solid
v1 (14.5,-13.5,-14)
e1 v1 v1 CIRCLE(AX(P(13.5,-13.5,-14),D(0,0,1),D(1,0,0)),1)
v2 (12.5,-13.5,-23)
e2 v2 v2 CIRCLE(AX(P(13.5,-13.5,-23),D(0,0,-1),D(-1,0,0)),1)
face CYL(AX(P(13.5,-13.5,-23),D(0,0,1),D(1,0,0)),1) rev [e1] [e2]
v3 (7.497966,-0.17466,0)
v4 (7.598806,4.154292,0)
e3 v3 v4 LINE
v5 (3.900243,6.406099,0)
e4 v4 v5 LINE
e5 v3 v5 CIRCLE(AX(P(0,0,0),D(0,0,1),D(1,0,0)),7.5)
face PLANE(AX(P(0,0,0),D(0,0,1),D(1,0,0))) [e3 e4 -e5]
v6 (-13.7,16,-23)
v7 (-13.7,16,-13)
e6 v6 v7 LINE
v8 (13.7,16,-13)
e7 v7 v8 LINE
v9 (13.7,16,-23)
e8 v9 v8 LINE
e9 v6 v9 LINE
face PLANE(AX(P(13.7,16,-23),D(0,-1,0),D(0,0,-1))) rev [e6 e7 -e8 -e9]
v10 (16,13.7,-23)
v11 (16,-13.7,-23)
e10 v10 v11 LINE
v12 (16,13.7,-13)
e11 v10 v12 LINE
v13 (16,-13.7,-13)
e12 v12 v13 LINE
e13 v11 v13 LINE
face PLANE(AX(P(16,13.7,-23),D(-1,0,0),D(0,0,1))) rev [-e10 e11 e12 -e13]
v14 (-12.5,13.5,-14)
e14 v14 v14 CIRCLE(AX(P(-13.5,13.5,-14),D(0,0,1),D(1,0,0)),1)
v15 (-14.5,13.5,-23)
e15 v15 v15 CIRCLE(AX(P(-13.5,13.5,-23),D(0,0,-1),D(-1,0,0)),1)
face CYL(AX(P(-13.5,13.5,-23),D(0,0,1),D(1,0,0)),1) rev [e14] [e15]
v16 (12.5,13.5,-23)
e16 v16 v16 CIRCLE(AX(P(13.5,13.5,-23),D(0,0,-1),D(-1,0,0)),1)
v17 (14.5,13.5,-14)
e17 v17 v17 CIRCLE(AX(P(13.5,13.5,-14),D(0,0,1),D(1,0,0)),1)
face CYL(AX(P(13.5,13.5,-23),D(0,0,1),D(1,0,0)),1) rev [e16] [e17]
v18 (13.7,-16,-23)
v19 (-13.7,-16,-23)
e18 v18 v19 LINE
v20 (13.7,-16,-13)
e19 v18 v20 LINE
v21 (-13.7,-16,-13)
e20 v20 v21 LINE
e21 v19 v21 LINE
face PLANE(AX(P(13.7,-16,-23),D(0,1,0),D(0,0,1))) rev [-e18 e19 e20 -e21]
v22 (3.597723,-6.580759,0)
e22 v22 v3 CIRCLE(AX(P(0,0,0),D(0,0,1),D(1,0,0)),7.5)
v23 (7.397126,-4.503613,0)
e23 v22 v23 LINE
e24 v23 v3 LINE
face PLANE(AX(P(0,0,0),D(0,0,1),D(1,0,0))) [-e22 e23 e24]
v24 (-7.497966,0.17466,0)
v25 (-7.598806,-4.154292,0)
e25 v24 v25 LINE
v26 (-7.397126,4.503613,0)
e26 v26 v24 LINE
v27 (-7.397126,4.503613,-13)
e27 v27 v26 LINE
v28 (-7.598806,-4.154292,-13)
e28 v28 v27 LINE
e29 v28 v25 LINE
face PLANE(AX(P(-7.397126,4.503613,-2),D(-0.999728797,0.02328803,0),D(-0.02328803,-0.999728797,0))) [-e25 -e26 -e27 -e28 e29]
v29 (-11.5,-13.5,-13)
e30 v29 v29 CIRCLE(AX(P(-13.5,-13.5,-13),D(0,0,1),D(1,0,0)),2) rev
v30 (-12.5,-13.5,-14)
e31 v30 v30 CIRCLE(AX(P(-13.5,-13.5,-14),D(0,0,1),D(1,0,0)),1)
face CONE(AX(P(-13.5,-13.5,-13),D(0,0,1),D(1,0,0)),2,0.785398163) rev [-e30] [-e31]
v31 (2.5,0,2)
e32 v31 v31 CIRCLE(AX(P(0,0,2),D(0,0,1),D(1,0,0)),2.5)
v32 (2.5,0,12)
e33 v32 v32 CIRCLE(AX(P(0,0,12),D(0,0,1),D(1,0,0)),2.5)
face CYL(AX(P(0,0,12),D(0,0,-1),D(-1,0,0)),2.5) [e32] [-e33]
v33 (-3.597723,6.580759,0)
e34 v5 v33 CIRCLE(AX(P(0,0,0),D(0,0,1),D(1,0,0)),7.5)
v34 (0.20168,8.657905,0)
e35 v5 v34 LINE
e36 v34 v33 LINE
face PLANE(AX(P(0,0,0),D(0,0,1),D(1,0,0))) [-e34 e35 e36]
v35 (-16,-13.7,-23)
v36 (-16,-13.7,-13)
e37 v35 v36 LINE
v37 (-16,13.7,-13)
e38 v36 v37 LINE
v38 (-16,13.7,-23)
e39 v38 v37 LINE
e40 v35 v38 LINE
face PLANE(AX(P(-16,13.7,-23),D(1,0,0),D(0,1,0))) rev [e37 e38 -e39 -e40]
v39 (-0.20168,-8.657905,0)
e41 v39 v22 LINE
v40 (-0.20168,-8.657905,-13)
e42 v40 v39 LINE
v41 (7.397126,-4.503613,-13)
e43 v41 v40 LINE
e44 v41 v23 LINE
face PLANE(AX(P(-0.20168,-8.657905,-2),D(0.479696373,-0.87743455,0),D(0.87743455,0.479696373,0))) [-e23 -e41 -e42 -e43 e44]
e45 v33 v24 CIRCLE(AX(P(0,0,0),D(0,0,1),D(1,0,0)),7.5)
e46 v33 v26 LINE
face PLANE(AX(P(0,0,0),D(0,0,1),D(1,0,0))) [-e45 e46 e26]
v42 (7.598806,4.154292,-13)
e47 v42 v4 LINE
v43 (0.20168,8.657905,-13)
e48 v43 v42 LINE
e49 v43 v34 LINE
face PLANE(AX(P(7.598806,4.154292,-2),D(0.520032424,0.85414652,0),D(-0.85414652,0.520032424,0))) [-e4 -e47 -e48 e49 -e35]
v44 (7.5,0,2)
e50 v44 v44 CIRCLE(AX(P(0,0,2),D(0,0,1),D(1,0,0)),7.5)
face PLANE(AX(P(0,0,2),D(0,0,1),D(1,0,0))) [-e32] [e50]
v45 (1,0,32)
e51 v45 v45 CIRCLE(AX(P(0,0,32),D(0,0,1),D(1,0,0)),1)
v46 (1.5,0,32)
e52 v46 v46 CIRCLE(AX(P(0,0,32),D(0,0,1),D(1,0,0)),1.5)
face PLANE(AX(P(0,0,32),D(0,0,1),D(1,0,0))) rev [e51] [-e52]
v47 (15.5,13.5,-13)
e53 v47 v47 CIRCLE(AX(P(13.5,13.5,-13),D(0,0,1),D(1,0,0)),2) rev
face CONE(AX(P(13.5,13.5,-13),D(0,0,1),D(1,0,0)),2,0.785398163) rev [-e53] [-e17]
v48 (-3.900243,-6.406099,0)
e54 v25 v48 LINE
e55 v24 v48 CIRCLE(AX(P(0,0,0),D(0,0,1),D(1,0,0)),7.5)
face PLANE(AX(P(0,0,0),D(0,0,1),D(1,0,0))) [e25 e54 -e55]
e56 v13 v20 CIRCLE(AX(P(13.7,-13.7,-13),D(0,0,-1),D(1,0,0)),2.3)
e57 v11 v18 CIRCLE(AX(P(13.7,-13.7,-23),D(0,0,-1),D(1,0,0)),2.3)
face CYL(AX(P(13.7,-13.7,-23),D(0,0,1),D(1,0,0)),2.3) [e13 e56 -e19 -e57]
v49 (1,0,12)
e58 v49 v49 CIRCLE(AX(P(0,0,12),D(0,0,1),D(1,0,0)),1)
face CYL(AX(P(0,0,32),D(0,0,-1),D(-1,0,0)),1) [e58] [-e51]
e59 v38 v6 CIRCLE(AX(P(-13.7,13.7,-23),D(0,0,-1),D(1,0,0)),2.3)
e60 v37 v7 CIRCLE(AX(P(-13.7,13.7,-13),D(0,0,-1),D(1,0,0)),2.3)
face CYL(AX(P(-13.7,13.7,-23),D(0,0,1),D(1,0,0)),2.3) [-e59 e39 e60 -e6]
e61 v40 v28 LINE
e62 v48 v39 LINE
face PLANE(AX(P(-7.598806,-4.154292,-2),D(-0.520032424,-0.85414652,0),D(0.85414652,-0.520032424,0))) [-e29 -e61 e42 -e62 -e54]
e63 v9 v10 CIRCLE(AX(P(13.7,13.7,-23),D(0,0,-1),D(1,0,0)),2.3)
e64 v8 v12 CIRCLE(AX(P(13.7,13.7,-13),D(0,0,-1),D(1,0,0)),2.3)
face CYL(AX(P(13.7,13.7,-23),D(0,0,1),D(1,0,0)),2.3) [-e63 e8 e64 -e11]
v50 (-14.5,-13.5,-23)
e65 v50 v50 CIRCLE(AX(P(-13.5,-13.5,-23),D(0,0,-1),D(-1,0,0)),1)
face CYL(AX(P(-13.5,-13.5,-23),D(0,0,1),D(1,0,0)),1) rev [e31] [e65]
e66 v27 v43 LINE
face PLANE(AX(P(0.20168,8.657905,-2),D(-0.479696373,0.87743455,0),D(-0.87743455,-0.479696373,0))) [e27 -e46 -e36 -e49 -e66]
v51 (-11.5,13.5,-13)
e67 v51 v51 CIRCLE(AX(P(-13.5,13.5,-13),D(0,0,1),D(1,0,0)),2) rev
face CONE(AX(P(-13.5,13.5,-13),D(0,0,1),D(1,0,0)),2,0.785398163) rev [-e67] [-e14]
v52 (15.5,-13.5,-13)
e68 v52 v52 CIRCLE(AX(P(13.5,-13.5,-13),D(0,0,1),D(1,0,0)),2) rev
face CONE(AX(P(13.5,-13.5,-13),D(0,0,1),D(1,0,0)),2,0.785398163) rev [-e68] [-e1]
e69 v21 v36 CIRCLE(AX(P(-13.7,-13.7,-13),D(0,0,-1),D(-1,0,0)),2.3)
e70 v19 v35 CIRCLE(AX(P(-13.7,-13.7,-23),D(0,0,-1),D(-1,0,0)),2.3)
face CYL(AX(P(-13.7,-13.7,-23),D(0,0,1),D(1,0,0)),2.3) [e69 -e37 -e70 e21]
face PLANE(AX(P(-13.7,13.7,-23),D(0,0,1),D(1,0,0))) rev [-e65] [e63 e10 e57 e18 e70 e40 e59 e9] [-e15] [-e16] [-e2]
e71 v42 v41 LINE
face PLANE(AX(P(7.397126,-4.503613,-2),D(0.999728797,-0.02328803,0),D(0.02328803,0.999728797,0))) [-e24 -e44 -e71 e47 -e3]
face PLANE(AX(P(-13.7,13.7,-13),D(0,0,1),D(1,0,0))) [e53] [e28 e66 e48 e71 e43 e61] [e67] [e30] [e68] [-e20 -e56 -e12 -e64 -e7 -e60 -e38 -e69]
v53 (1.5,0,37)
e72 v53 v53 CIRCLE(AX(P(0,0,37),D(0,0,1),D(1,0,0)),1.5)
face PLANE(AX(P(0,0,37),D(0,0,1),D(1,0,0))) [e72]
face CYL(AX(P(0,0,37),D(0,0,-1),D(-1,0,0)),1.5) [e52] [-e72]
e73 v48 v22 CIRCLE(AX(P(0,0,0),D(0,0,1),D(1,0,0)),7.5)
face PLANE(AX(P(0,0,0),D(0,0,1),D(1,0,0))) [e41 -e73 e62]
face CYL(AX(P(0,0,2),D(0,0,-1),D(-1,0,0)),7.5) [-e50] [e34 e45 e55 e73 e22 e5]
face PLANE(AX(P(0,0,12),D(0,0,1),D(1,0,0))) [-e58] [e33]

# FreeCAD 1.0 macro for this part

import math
import FreeCAD as App
import Part
import Sketcher


def edges_at(feature, points):
    """Names of the edges that pass closest to the given points."""
    edges = feature.Shape.Edges
    near = lambda p: min(range(len(edges)), key=lambda i: edges[i].distToShape(Part.Vertex(*p))[0])
    return sorted({f"Edge{near(p) + 1}" for p in points})


def add_polygon(sketch, points):
    """Adds a closed chain of lines whose ends are joined by coincident constraints."""
    first, n = sketch.GeometryCount, len(points)
    for a, b in zip(points, points[1:] + points[:1]):
        sketch.addGeometry(Part.LineSegment(App.Vector(*a, 0), App.Vector(*b, 0)), False)
    for i in range(n):
        sketch.addConstraint(Sketcher.Constraint("Coincident", first + i, 2, first + (i + 1) % n, 1))

doc = App.newDocument("Part")
params = doc.addObject("Spreadsheet::Sheet", "Params")
for row, (alias, value) in enumerate([
    ("pad1_length", "2 mm"),
    ("sketch2_diameter", "15 mm"),
    ("pad2_length", "2 mm"),
    ("sketch3_diameter", "5 mm"),
    ("pad3_length", "10 mm"),
    ("sketch4_diameter", "2 mm"),
    ("pad4_length", "20 mm"),
    ("sketch5_diameter", "3 mm"),
    ("pad5_length", "5 mm"),
    ("pad6_length", "11 mm"),
    ("sketch7_diameter", "2 mm"),
    ("sketch7_radius", "2.3 mm"),
    ("sketch7_width", "27.4 mm"),
    ("pad7_length", "10 mm"),
    ("chamfer_size", "1 mm"),
], start=1):
    params.set(f"A{row}", alias)
    params.set(f"B{row}", "=" + value)
    params.setAlias(f"B{row}", alias)

body = doc.addObject("PartDesign::Body", "Body")

sketch1 = body.newObject("Sketcher::SketchObject", "Sketch")
sketch1.AttachmentSupport = (doc.getObject("XY_Plane"), [""])
sketch1.MapMode = "FlatFace"
add_polygon(sketch1, [(7, -5), (8, 4), (0, 9), (-7, 5), (-8, -4), (0, -9)])
sketch1.addConstraint([
    Sketcher.Constraint("Symmetric", 0, 2, 3, 2, -1, 1),
    Sketcher.Constraint("Symmetric", 1, 2, 4, 2, -1, 1),
    Sketcher.Constraint("Symmetric", 2, 2, 5, 2, -1, 1),
    Sketcher.Constraint("Equal", 0, 1),
    Sketcher.Constraint("Equal", 1, 2),
    Sketcher.Constraint("DistanceX", -1, 1, 1, 2, 0.20168),
    Sketcher.Constraint("DistanceX", 2, 2, 0, 2, 14.995932),
    Sketcher.Constraint("DistanceY", 0, 2, 2, 2, 0.34932),
    Sketcher.Constraint("DistanceX", 3, 2, 2, 2, 0.20168),
])
pad1 = body.newObject("PartDesign::Pad", "Pad")
pad1.Profile = sketch1
pad1.setExpression("Length", "Params.pad1_length")
pad1.Reversed = True

sketch2 = body.newObject("Sketcher::SketchObject", "Sketch001")
sketch2.AttachmentSupport = (doc.getObject("XY_Plane"), [""])
sketch2.MapMode = "FlatFace"
sketch2.addGeometry(Part.Circle(App.Vector(0, 0, 0), App.Vector(0, 0, 1), 8), False)
sketch2.addConstraint([
    Sketcher.Constraint("Coincident", 0, 3, -1, 1),
    Sketcher.Constraint("Diameter", 0, 15.0),
])
sketch2.setExpression("Constraints[1]", "Params.sketch2_diameter")
pad2 = body.newObject("PartDesign::Pad", "Pad001")
pad2.Profile = sketch2
pad2.setExpression("Length", "Params.pad2_length")

sketch3 = body.newObject("Sketcher::SketchObject", "Sketch002")
sketch3.AttachmentSupport = (doc.getObject("XY_Plane"), [""])
sketch3.MapMode = "FlatFace"
sketch3.AttachmentOffset = App.Placement(App.Vector(0, 0, 2), App.Rotation())
sketch3.addGeometry(Part.Circle(App.Vector(0, 0, 0), App.Vector(0, 0, 1), 2.5), False)
sketch3.addConstraint([
    Sketcher.Constraint("Coincident", 0, 3, -1, 1),
    Sketcher.Constraint("Diameter", 0, 5.0),
])
sketch3.setExpression("Constraints[1]", "Params.sketch3_diameter")
pad3 = body.newObject("PartDesign::Pad", "Pad002")
pad3.Profile = sketch3
pad3.setExpression("Length", "Params.pad3_length")

sketch4 = body.newObject("Sketcher::SketchObject", "Sketch003")
sketch4.AttachmentSupport = (doc.getObject("XY_Plane"), [""])
sketch4.MapMode = "FlatFace"
sketch4.AttachmentOffset = App.Placement(App.Vector(0, 0, 12), App.Rotation())
sketch4.addGeometry(Part.Circle(App.Vector(0, 0, 0), App.Vector(0, 0, 1), 1), False)
sketch4.addConstraint([
    Sketcher.Constraint("Coincident", 0, 3, -1, 1),
    Sketcher.Constraint("Diameter", 0, 2.0),
])
sketch4.setExpression("Constraints[1]", "Params.sketch4_diameter")
pad4 = body.newObject("PartDesign::Pad", "Pad003")
pad4.Profile = sketch4
pad4.setExpression("Length", "Params.pad4_length")

sketch5 = body.newObject("Sketcher::SketchObject", "Sketch004")
sketch5.AttachmentSupport = (doc.getObject("XY_Plane"), [""])
sketch5.MapMode = "FlatFace"
sketch5.AttachmentOffset = App.Placement(App.Vector(0, 0, 32), App.Rotation())
sketch5.addGeometry(Part.Circle(App.Vector(0, 0, 0), App.Vector(0, 0, 1), 1.5), False)
sketch5.addConstraint([
    Sketcher.Constraint("Coincident", 0, 3, -1, 1),
    Sketcher.Constraint("Diameter", 0, 3.0),
])
sketch5.setExpression("Constraints[1]", "Params.sketch5_diameter")
pad5 = body.newObject("PartDesign::Pad", "Pad004")
pad5.Profile = sketch5
pad5.setExpression("Length", "Params.pad5_length")

sketch6 = body.newObject("Sketcher::SketchObject", "Sketch005")
sketch6.AttachmentSupport = (doc.getObject("XY_Plane"), [""])
sketch6.MapMode = "FlatFace"
sketch6.AttachmentOffset = App.Placement(App.Vector(0, 0, -2), App.Rotation())
add_polygon(sketch6, [(0, 9), (8, 4), (7, -5), (0, -9), (-8, -4), (-7, 5)])
sketch6.addConstraint([
    Sketcher.Constraint("Symmetric", 0, 2, 3, 2, -1, 1),
    Sketcher.Constraint("Symmetric", 1, 2, 4, 2, -1, 1),
    Sketcher.Constraint("Symmetric", 2, 2, 5, 2, -1, 1),
    Sketcher.Constraint("Equal", 0, 1),
    Sketcher.Constraint("Equal", 1, 2),
    Sketcher.Constraint("DistanceX", 2, 2, -1, 1, 0.20168),
    Sketcher.Constraint("DistanceX", 1, 2, 0, 2, 0.20168),
    Sketcher.Constraint("DistanceX", 3, 2, 1, 2, 14.995932),
    Sketcher.Constraint("DistanceY", 1, 2, 3, 2, 0.34932),
])
pad6 = body.newObject("PartDesign::Pad", "Pad005")
pad6.Profile = sketch6
pad6.setExpression("Length", "Params.pad6_length")
pad6.Reversed = True

sketch7 = body.newObject("Sketcher::SketchObject", "Sketch006")
sketch7.AttachmentSupport = (doc.getObject("XY_Plane"), [""])
sketch7.MapMode = "FlatFace"
sketch7.AttachmentOffset = App.Placement(App.Vector(0, 0, -13), App.Rotation())
sketch7.addGeometry([
    Part.LineSegment(App.Vector(-13.7, 16, 0), App.Vector(13.7, 16, 0)),
    Part.ArcOfCircle(Part.Circle(App.Vector(13.7, 13.7, 0), App.Vector(0, 0, 1), 2.3), math.radians(0), math.radians(90)),
    Part.LineSegment(App.Vector(16, 13.7, 0), App.Vector(16, -13.7, 0)),
    Part.ArcOfCircle(Part.Circle(App.Vector(13.7, -13.7, 0), App.Vector(0, 0, 1), 2.3), math.radians(-90), math.radians(0)),
    Part.LineSegment(App.Vector(13.7, -16, 0), App.Vector(-13.7, -16, 0)),
    Part.ArcOfCircle(Part.Circle(App.Vector(-13.7, -13.7, 0), App.Vector(0, 0, 1), 2.3), math.radians(180), math.radians(270)),
    Part.LineSegment(App.Vector(-16, -13.7, 0), App.Vector(-16, 13.7, 0)),
    Part.ArcOfCircle(Part.Circle(App.Vector(-13.7, 13.7, 0), App.Vector(0, 0, 1), 2.3), math.radians(90), math.radians(180)),
    Part.Circle(App.Vector(-13.5, -13.5, 0), App.Vector(0, 0, 1), 1),
    Part.Circle(App.Vector(13.5, -13.5, 0), App.Vector(0, 0, 1), 1),
    Part.Circle(App.Vector(-13.5, 13.5, 0), App.Vector(0, 0, 1), 1),
    Part.Circle(App.Vector(13.5, 13.5, 0), App.Vector(0, 0, 1), 1),
], False)
sketch7.addConstraint([
    Sketcher.Constraint("Tangent", 0, 2, 1, 2),
    Sketcher.Constraint("Tangent", 1, 1, 2, 1),
    Sketcher.Constraint("Tangent", 2, 2, 3, 2),
    Sketcher.Constraint("Tangent", 3, 1, 4, 1),
    Sketcher.Constraint("Tangent", 4, 2, 5, 2),
    Sketcher.Constraint("Tangent", 5, 1, 6, 1),
    Sketcher.Constraint("Tangent", 6, 2, 7, 2),
    Sketcher.Constraint("Tangent", 7, 1, 0, 1),
    Sketcher.Constraint("Horizontal", 0),
    Sketcher.Constraint("Vertical", 2),
    Sketcher.Constraint("Horizontal", 4),
    Sketcher.Constraint("Vertical", 6),
    Sketcher.Constraint("Equal", 1, 3),
    Sketcher.Constraint("Equal", 3, 5),
    Sketcher.Constraint("Equal", 5, 7),
    Sketcher.Constraint("Equal", 8, 9),
    Sketcher.Constraint("Equal", 9, 10),
    Sketcher.Constraint("Equal", 10, 11),
    Sketcher.Constraint("Symmetric", 1, 3, 5, 3, -1, 1),
    Sketcher.Constraint("Symmetric", 9, 3, 10, 3, -1, 1),
    Sketcher.Constraint("Symmetric", 8, 3, 11, 3, -1, 1),
    Sketcher.Constraint("Symmetric", 8, 3, 9, 3, -2),
    Sketcher.Constraint("Equal", 4, 2),
    Sketcher.Constraint("Diameter", 8, 2.0),
    Sketcher.Constraint("Radius", 1, 2.3),
    Sketcher.Constraint("DistanceX", 0, 1, 0, 2, 27.4),
    Sketcher.Constraint("DistanceX", 8, 3, 9, 3, 27.0),
    Sketcher.Constraint("DistanceY", 8, 3, 10, 3, 27.0),
])
sketch7.setExpression("Constraints[23]", "Params.sketch7_diameter")
sketch7.setExpression("Constraints[24]", "Params.sketch7_radius")
sketch7.setExpression("Constraints[25]", "Params.sketch7_width")
pad7 = body.newObject("PartDesign::Pad", "Pad006")
pad7.Profile = sketch7
pad7.setExpression("Length", "Params.pad7_length")
pad7.Reversed = True
doc.recompute()

chamfer = body.newObject("PartDesign::Chamfer", "Chamfer")
chamfer.Base = (pad7, edges_at(pad7, [
    (-12.5, -13.5, -13),
    (14.5, 13.5, -13),
    (-12.5, 13.5, -13),
    (14.5, -13.5, -13),
]))
chamfer.setExpression("Size", "Params.chamfer_size")

doc.recompute()
